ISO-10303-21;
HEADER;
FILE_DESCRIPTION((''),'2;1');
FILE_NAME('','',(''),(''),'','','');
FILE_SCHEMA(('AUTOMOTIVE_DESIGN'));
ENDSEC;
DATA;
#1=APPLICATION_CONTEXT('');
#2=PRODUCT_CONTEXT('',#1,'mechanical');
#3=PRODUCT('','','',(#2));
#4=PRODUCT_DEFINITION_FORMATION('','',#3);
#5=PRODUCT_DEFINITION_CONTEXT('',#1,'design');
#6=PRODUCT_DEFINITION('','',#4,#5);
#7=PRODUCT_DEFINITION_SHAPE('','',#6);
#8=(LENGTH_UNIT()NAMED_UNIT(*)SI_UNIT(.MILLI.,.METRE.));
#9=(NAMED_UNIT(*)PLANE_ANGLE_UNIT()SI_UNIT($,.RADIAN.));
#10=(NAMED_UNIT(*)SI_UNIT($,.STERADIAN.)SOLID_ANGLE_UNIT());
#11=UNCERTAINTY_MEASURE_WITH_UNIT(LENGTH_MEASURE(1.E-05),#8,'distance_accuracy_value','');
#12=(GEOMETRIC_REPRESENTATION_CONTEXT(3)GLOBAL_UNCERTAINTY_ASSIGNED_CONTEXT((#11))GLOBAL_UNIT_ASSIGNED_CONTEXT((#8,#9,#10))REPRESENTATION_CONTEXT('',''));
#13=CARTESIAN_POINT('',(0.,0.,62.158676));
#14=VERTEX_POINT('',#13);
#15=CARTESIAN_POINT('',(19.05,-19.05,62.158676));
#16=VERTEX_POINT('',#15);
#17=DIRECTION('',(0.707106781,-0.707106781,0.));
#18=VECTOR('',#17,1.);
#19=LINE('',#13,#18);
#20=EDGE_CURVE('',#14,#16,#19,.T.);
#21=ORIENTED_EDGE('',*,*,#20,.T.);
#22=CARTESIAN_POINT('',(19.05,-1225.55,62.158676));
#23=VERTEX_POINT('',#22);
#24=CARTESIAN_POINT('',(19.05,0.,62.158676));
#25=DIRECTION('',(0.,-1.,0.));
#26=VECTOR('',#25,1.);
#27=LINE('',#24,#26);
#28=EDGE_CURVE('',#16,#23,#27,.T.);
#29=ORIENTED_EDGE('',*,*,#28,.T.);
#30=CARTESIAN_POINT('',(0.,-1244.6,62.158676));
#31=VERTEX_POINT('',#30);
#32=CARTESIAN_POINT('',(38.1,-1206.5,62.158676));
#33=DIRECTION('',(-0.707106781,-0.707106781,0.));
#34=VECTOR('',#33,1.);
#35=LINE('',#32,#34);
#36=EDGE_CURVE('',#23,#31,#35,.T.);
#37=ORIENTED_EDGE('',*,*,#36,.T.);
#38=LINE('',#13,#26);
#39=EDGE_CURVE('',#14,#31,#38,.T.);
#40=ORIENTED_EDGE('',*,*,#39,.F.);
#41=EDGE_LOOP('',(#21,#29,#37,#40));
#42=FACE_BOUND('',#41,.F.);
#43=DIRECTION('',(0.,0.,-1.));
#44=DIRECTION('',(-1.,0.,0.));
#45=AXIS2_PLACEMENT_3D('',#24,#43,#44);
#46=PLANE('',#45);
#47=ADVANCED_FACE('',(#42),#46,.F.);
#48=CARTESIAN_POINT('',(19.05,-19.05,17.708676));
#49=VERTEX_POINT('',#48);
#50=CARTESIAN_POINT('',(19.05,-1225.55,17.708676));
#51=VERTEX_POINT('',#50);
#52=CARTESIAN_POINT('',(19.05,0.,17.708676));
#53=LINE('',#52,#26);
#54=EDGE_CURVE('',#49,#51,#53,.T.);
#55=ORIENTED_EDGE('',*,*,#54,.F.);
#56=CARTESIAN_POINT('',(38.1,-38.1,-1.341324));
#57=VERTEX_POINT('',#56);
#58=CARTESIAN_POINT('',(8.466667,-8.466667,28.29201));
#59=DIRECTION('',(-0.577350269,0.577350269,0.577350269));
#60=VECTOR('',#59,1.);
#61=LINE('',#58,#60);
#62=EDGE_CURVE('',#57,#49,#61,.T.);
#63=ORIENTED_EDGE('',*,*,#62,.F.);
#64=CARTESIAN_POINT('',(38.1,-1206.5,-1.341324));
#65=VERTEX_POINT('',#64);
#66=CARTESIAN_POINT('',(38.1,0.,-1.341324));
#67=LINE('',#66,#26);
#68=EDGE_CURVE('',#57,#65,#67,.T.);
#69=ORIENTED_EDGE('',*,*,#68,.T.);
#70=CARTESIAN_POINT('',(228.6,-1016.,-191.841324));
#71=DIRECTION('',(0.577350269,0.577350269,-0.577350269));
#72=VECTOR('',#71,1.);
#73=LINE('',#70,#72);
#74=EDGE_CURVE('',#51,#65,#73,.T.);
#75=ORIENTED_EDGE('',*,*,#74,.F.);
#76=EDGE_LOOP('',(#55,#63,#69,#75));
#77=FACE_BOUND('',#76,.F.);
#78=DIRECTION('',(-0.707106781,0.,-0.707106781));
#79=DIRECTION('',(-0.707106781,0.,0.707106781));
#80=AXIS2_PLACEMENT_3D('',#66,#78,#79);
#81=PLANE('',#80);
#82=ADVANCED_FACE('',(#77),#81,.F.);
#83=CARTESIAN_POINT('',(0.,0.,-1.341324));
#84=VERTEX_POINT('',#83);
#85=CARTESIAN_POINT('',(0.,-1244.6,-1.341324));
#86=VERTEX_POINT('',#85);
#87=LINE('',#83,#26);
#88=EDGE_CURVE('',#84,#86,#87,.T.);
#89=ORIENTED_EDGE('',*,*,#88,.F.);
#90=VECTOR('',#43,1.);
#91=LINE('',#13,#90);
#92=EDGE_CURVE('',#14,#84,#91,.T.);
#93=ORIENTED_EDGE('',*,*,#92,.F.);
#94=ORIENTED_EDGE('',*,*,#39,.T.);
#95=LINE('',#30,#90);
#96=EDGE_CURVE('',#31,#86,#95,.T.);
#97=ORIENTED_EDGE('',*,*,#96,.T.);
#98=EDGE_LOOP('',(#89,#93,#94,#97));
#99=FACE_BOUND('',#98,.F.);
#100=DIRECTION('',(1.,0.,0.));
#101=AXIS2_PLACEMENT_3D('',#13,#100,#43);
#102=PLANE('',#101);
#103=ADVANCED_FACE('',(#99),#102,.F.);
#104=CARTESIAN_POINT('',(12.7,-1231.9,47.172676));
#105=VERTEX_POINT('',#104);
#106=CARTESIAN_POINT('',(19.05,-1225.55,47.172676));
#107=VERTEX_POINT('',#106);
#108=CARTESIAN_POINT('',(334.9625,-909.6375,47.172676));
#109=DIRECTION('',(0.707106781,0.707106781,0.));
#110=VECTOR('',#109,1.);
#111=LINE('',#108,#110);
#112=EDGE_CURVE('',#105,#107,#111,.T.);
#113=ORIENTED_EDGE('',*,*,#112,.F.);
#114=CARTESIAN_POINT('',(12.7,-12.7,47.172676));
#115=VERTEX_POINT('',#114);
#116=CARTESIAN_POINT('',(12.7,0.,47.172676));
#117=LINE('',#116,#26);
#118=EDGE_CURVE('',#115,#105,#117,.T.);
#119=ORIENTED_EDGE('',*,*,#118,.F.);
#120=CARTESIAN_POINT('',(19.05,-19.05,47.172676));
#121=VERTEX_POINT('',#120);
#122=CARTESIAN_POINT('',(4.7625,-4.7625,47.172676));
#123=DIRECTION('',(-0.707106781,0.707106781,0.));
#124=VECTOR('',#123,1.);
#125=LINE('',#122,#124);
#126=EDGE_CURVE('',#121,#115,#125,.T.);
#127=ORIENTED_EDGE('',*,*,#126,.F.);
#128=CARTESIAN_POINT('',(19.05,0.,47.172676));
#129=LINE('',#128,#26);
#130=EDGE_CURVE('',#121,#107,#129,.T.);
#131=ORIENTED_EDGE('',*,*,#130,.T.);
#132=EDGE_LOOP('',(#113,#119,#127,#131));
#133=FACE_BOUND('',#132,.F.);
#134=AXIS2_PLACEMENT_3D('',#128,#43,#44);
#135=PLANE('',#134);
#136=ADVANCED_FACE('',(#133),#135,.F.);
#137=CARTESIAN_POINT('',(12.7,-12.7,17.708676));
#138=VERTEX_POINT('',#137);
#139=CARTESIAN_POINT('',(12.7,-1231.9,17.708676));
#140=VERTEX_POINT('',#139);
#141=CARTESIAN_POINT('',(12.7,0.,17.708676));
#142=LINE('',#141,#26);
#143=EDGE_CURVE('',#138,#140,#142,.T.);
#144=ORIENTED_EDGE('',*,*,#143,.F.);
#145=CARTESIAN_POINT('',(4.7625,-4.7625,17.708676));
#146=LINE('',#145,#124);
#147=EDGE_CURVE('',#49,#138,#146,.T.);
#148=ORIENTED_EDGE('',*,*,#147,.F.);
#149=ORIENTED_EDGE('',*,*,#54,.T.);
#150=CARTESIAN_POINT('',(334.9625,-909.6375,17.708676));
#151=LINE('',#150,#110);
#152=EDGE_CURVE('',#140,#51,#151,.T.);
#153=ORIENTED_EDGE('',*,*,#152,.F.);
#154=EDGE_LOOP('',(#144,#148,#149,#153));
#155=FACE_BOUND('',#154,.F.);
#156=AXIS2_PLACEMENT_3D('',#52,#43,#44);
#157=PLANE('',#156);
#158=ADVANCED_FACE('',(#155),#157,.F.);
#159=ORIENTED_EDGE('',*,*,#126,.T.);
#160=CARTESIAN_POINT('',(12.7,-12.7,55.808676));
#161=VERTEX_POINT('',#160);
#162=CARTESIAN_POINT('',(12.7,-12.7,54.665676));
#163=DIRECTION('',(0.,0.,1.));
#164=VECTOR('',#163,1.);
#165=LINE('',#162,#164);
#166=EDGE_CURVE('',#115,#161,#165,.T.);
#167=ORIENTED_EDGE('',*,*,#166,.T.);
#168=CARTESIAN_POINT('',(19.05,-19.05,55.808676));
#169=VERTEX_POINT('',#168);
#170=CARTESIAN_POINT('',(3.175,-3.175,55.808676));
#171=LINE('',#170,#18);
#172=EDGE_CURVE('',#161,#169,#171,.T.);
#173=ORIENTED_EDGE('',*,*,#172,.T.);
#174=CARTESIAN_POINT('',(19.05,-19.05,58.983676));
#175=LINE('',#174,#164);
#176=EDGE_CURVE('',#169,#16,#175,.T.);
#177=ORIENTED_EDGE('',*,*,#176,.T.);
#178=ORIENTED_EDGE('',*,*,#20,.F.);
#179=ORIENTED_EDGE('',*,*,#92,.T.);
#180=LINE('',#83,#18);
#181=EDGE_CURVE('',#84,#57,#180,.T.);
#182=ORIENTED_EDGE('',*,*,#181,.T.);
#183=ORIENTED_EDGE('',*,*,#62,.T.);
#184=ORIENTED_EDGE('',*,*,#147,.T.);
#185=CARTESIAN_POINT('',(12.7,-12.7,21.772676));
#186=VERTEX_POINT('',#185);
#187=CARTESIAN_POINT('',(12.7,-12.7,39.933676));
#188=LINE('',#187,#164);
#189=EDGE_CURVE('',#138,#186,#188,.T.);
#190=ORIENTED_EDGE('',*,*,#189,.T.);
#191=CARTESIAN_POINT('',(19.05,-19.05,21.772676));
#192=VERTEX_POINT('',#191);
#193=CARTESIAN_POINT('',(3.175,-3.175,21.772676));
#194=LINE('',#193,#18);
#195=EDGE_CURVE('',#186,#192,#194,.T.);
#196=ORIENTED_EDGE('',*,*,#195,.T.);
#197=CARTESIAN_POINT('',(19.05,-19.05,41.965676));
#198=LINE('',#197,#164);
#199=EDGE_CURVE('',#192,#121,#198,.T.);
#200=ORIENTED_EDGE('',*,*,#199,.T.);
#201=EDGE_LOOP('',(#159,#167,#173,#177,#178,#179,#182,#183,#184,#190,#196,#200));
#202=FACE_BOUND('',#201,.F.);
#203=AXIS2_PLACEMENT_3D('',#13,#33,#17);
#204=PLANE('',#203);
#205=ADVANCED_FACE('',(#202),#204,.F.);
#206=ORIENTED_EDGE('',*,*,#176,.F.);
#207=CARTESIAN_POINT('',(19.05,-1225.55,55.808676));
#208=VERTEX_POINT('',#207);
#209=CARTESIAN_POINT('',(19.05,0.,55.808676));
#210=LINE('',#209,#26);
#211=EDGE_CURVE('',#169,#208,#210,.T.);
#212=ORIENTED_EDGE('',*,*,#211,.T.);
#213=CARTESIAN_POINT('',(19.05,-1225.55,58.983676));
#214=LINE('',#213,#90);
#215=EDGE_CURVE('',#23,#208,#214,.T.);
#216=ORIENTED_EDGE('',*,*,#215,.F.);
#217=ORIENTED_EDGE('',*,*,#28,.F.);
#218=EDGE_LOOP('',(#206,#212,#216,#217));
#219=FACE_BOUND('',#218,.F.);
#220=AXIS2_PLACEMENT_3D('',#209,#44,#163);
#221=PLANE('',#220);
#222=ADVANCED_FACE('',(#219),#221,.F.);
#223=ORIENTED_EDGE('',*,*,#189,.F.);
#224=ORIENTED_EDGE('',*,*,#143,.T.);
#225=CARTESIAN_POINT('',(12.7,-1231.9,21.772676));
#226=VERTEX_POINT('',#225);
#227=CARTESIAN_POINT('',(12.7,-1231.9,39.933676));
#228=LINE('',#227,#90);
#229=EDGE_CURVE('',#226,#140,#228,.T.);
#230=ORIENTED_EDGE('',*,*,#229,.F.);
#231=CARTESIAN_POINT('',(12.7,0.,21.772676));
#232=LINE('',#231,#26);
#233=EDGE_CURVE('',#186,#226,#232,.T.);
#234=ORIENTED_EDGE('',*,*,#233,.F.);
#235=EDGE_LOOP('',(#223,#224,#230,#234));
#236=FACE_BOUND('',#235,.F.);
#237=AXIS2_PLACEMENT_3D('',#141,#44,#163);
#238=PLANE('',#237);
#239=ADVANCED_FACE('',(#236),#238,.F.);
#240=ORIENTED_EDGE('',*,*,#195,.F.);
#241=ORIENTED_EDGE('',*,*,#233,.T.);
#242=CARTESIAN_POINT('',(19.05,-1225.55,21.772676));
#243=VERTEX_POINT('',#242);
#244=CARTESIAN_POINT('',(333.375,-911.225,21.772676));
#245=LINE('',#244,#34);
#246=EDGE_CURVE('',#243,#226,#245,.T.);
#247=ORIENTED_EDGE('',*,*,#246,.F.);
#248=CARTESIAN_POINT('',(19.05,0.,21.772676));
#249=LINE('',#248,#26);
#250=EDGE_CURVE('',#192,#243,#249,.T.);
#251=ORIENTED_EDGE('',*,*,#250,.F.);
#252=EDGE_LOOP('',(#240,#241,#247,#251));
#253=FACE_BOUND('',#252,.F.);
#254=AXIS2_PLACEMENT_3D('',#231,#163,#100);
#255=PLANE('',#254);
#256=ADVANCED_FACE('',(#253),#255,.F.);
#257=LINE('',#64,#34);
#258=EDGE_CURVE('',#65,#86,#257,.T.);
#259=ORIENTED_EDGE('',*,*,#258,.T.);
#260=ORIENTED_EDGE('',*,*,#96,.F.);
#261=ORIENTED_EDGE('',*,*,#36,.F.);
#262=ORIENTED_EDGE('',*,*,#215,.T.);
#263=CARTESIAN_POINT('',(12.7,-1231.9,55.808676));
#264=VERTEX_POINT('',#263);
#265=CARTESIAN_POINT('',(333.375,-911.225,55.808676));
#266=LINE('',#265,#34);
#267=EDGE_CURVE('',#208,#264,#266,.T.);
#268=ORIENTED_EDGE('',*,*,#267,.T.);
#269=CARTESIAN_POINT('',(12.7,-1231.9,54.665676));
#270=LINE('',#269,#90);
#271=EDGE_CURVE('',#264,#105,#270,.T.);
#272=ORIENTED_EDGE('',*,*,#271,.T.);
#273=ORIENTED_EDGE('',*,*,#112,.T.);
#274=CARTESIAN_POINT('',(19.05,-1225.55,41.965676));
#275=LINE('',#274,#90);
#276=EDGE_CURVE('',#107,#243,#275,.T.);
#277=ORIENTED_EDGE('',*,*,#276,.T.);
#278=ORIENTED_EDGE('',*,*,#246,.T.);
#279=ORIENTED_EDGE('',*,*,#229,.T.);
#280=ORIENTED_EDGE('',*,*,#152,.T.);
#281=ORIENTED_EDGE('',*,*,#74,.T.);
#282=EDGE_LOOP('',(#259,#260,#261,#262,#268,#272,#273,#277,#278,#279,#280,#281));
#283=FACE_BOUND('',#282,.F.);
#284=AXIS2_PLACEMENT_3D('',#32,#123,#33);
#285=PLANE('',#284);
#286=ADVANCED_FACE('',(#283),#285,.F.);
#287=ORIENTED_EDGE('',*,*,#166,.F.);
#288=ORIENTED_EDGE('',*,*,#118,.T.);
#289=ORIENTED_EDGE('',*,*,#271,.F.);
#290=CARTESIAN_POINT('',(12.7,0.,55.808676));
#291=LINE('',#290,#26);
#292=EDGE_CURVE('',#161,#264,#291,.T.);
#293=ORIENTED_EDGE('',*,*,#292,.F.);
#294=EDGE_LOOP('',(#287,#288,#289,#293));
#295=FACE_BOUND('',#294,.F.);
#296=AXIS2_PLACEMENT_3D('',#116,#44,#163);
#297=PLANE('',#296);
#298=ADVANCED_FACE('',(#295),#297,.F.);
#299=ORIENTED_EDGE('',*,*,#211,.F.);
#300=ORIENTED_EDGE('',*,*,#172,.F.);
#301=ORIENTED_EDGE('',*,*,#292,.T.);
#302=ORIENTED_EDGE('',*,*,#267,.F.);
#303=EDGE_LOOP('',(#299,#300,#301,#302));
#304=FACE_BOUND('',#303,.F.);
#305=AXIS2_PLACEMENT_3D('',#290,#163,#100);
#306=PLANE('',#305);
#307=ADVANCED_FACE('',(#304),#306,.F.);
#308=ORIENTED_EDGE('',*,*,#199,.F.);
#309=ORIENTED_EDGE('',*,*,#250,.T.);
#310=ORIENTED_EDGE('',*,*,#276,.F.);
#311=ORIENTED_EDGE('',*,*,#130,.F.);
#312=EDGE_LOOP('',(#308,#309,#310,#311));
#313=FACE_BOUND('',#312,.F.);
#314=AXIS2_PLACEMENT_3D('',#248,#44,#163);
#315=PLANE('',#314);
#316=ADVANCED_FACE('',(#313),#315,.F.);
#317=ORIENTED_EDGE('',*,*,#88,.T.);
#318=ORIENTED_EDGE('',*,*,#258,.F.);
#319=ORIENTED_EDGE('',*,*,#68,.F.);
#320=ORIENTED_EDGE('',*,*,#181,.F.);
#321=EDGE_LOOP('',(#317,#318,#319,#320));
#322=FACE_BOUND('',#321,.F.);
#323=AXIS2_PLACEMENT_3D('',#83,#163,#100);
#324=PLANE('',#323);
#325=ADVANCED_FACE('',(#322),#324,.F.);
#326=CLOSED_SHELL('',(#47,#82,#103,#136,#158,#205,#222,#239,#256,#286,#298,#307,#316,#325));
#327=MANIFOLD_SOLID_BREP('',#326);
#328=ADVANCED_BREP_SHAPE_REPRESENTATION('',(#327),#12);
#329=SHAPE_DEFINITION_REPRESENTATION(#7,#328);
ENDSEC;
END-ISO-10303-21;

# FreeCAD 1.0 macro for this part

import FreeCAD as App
import Part
import Sketcher
from FreeCAD import Vector
Q = App.Units.Quantity


def add_polygon(sketch, points):
    """Adds a closed chain of lines whose ends are joined by coincident constraints."""
    first, n = sketch.GeometryCount, len(points)
    for a, b in zip(points, points[1:] + points[:1]):
        sketch.addGeometry(Part.LineSegment(App.Vector(*a, 0), App.Vector(*b, 0)), False)
    for i in range(n):
        sketch.addConstraint(Sketcher.Constraint("Coincident", first + i, 2, first + (i + 1) % n, 1))

doc = App.newDocument("Part")
body = doc.addObject("PartDesign::Body", "Body")

sketch1 = body.newObject("Sketcher::SketchObject", "Sketch")
sketch1.AttachmentSupport = (doc.getObject("XZ_Plane"), [""])
sketch1.MapMode = "FlatFace"
add_polygon(sketch1, [(19.1, 62.2), (0, 62.2), (0, -1.3), (38.1, -1.3), (19.1, 17.7), (12.7, 17.7), (12.7, 21.8), (19.1, 21.8), (19.1, 47.2), (12.7, 47.2), (12.7, 55.8), (19.1, 55.8)])
sketch1.addConstraint([
    Sketcher.Constraint("Horizontal", 0),
    Sketcher.Constraint("Vertical", 1),
    Sketcher.Constraint("Horizontal", 2),
    Sketcher.Constraint("Horizontal", 4),
    Sketcher.Constraint("Vertical", 5),
    Sketcher.Constraint("Horizontal", 6),
    Sketcher.Constraint("Vertical", 7),
    Sketcher.Constraint("Horizontal", 8),
    Sketcher.Constraint("Vertical", 9),
    Sketcher.Constraint("Horizontal", 10),
    Sketcher.Constraint("Vertical", 11),
    Sketcher.Constraint("PointOnObject", 0, 2, -2),
    Sketcher.Constraint("Vertical", 3, 2, 6, 2),
    Sketcher.Constraint("Vertical", 5, 2, 8, 2),
    Sketcher.Constraint("Vertical", 7, 2, 10, 2),
    Sketcher.Constraint("Equal", 10, 11),
    Sketcher.Constraint("DistanceY", 7, 1, 7, 2, Q("1 in")),
    Sketcher.Constraint("DistanceX", 2, 1, 2, 2, Q("1.5 in")),
    Sketcher.Constraint("DistanceY", 1, 2, 1, 1, Q("2.5 in")),
    Sketcher.Constraint("Angle", 3, Q("135 deg")),
    Sketcher.Constraint("DistanceX", 4, 2, 2, 2, Q("1 in")),
    Sketcher.Constraint("DistanceX", 0, 2, 0, 1, Q("0.75 in")),
    Sketcher.Constraint("DistanceY", 5, 1, 5, 2, Q("0.16 in")),
    Sketcher.Constraint("DistanceY", -1, 1, 0, 2, 62.158676),
])
pad1 = body.newObject("PartDesign::Pad", "Pad")
pad1.Profile = sketch1
pad1.Length = Q("49 in")

sketch2 = body.newObject("Sketcher::SketchObject", "Sketch001")
sketch2.AttachmentSupport = (doc.getObject("XY_Plane"), [""])
sketch2.MapMode = "FlatFace"
sketch2.AttachmentOffset = App.Placement(Vector(0, 0, 62.158676), App.Rotation())
add_polygon(sketch2, [(0, -1245), (38, -1245), (38, -1206)])
add_polygon(sketch2, [(0, 0), (38, -38), (38, 0)])
sketch2.addConstraint([
    Sketcher.Constraint("Horizontal", 0),
    Sketcher.Constraint("Vertical", 1),
    Sketcher.Constraint("Vertical", 4),
    Sketcher.Constraint("Horizontal", 5),
    Sketcher.Constraint("Coincident", 5, 2, -1, 1),
    Sketcher.Constraint("PointOnObject", 2, 2, -2),
    Sketcher.Constraint("Perpendicular", 2, 3),
    Sketcher.Constraint("Vertical", 1, 2, 3, 2),
    Sketcher.Constraint("Equal", 5, 1),
    Sketcher.Constraint("DistanceX", 0, 1, 0, 2, Q("1.5 in")),
    Sketcher.Constraint("DistanceY", 0, 2, -1, 1, Q("49 in")),
])
pocket1 = body.newObject("PartDesign::Pocket", "Pocket")
pocket1.Profile = sketch2
pocket1.Length = Q("2.5 in")

doc.recompute()
